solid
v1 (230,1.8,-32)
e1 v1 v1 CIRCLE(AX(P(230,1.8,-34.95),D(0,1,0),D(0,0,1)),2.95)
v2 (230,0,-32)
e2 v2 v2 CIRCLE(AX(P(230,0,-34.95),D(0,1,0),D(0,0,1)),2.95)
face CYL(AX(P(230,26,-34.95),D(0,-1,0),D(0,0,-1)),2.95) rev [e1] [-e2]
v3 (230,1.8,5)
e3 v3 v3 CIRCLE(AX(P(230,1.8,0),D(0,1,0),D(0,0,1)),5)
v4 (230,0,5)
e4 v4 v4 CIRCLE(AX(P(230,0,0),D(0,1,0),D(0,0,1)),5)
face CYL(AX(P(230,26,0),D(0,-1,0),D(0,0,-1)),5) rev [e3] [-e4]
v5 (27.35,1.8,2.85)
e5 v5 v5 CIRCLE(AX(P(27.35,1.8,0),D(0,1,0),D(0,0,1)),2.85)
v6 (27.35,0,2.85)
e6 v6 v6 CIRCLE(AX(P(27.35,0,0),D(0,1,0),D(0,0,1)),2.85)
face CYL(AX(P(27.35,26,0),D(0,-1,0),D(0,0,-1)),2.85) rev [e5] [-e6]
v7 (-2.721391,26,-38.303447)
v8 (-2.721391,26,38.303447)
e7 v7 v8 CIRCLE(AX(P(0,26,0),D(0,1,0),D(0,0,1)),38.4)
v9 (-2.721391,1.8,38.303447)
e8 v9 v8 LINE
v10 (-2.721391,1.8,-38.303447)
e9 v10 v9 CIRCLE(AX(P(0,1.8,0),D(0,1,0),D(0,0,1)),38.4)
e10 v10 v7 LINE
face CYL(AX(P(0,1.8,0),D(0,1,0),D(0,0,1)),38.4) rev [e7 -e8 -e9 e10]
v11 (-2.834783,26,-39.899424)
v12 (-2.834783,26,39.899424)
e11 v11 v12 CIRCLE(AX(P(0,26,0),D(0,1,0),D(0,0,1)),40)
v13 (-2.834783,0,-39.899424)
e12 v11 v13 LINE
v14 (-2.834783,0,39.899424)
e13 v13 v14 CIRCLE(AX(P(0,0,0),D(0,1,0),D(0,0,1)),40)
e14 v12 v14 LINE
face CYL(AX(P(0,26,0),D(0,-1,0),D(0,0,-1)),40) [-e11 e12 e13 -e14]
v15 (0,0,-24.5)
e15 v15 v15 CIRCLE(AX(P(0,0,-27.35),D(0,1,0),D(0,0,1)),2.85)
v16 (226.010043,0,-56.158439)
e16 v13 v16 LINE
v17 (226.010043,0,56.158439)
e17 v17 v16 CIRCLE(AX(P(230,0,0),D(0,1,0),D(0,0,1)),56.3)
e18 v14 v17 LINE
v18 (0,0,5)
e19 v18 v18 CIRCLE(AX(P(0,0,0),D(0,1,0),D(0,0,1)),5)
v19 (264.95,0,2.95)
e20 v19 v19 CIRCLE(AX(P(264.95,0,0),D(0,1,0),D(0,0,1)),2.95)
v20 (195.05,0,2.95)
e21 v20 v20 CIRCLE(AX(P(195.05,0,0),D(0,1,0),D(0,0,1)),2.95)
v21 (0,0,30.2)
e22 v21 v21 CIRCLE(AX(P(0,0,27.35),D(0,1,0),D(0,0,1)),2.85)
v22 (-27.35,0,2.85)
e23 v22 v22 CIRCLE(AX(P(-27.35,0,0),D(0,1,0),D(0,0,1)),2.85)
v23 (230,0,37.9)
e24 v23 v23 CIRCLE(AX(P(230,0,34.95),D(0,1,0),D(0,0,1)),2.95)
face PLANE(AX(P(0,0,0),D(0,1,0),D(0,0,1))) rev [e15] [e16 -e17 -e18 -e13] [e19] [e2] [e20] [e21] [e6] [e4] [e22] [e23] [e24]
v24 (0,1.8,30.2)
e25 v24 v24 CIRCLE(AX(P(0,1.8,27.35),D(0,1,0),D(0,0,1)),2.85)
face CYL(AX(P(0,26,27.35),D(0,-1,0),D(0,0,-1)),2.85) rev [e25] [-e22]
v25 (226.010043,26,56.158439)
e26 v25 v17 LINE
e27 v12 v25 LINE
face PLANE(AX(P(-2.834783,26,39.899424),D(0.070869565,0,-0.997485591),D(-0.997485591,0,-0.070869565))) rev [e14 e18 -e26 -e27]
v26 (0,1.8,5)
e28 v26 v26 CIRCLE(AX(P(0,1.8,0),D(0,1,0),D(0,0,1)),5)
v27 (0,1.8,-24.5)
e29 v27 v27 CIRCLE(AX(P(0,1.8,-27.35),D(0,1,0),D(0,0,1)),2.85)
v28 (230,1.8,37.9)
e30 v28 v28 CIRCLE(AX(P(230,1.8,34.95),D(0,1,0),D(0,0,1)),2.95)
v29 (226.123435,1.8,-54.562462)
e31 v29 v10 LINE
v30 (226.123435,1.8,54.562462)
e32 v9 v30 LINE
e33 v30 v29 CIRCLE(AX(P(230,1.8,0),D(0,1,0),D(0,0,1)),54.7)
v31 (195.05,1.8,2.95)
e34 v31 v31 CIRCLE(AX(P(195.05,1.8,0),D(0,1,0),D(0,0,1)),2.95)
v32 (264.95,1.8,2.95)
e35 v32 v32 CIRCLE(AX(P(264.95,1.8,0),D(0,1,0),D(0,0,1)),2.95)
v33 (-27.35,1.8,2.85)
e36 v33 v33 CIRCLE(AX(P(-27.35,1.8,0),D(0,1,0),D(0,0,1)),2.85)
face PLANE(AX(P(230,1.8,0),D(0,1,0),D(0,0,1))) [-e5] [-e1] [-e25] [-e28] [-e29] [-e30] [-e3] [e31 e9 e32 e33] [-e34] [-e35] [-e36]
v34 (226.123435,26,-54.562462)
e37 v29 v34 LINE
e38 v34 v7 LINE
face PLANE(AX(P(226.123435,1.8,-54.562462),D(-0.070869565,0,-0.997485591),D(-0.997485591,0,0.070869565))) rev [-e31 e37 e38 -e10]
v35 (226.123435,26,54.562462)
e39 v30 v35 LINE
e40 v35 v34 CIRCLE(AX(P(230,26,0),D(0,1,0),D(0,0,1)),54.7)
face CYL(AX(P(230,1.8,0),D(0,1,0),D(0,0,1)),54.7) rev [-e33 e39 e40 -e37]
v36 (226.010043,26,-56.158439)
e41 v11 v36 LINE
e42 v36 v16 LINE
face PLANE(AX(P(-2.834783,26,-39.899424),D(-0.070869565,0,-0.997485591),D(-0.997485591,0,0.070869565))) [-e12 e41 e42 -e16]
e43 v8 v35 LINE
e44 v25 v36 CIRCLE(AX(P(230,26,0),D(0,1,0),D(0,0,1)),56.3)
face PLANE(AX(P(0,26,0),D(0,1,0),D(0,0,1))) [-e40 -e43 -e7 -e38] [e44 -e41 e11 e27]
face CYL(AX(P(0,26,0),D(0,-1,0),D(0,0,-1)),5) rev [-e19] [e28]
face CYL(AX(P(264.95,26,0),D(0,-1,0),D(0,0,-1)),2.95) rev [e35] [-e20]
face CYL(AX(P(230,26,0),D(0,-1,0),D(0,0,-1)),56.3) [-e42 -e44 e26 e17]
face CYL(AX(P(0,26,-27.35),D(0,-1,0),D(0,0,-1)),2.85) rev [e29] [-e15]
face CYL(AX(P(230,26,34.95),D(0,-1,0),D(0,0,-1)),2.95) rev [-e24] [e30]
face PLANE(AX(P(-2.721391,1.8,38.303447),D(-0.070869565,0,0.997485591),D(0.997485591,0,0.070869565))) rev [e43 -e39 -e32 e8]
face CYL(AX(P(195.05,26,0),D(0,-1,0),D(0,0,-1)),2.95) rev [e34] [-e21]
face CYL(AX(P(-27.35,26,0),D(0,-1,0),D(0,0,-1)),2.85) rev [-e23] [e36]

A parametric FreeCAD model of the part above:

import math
import FreeCAD as App
import Part
import Sketcher
Q = App.Units.Quantity

doc = App.newDocument("Part")
params = doc.addObject("Spreadsheet::Sheet", "Params")
for row, (alias, value) in enumerate([
    ("sketch1_diameter", "10 mm"),
    ("sketch1_radius", "40 mm"),
    ("sketch1_diameter2", "5.7 mm"),
    ("sketch1_diameter3", "5.9 mm"),
    ("sketch1_radius2", "56.3 mm"),
    ("pad1_length", "26 mm"),
    ("sketch2_radius", "54.7 mm"),
    ("sketch2_radius2", "38.4 mm"),
    ("pocket1_length", "24.2 mm"),
], start=1):
    params.set(f"A{row}", alias)
    params.set(f"B{row}", "=" + value)
    params.setAlias(f"B{row}", alias)

body = doc.addObject("PartDesign::Body", "Body")

sketch1 = doc.addObject("Sketcher::SketchObject", "Sketch")
body.addObject(sketch1)
sketch1.AttachmentSupport = (doc.XZ_Plane, [""])
sketch1.MapMode = "FlatFace"
sketch1.addGeometry(Part.LineSegment(App.Vector(226, -56.2, 0), App.Vector(-2.8, -39.9, 0)), False)
sketch1.addGeometry(Part.ArcOfCircle(Part.Circle(App.Vector(0, 0, 0), App.Vector(0, 0, 1), 40), math.radians(94), math.radians(266)), False)
sketch1.addGeometry(Part.LineSegment(App.Vector(-2.8, 39.9, 0), App.Vector(226, 56.2, 0)), False)
sketch1.addGeometry(Part.ArcOfCircle(Part.Circle(App.Vector(230, 0, 0), App.Vector(0, 0, 1), 56.3), math.radians(-94), math.radians(94)), False)
sketch1.addGeometry(Part.Circle(App.Vector(0, 27.4, 0), App.Vector(0, 0, 1), 2.9), False)
sketch1.addGeometry(Part.Circle(App.Vector(-27.4, 0, 0), App.Vector(0, 0, 1), 2.9), False)
sketch1.addGeometry(Part.Circle(App.Vector(0, 0, 0), App.Vector(0, 0, 1), 5), False)
sketch1.addGeometry(Part.Circle(App.Vector(27.4, 0, 0), App.Vector(0, 0, 1), 2.9), False)
sketch1.addGeometry(Part.Circle(App.Vector(230, 35, 0), App.Vector(0, 0, 1), 3), False)
sketch1.addGeometry(Part.Circle(App.Vector(195.1, 0, 0), App.Vector(0, 0, 1), 3), False)
sketch1.addGeometry(Part.Circle(App.Vector(230, 0, 0), App.Vector(0, 0, 1), 5), False)
sketch1.addGeometry(Part.Circle(App.Vector(264.9, 0, 0), App.Vector(0, 0, 1), 3), False)
sketch1.addGeometry(Part.Circle(App.Vector(0, -27.4, 0), App.Vector(0, 0, 1), 2.9), False)
sketch1.addGeometry(Part.Circle(App.Vector(230, -35, 0), App.Vector(0, 0, 1), 3), False)
sketch1.addConstraint(Sketcher.Constraint("Tangent", 0, 2, 1, 2))
sketch1.addConstraint(Sketcher.Constraint("Tangent", 1, 1, 2, 1))
sketch1.addConstraint(Sketcher.Constraint("Tangent", 2, 2, 3, 2))
sketch1.addConstraint(Sketcher.Constraint("Tangent", 3, 1, 0, 1))
sketch1.addConstraint(Sketcher.Constraint("Coincident", 1, 3, -1, 1))
sketch1.addConstraint(Sketcher.Constraint("Coincident", 6, 3, -1, 1))
sketch1.addConstraint(Sketcher.Constraint("Coincident", 10, 3, 3, 3))
sketch1.addConstraint(Sketcher.Constraint("Equal", 4, 5))
sketch1.addConstraint(Sketcher.Constraint("Equal", 5, 7))
sketch1.addConstraint(Sketcher.Constraint("Equal", 8, 9))
sketch1.addConstraint(Sketcher.Constraint("Equal", 6, 10))
sketch1.addConstraint(Sketcher.Constraint("Equal", 9, 11))
sketch1.addConstraint(Sketcher.Constraint("Equal", 7, 12))
sketch1.addConstraint(Sketcher.Constraint("Equal", 11, 13))
sketch1.addConstraint(Sketcher.Constraint("Symmetric", 5, 3, 7, 3, -1, 1))
sketch1.addConstraint(Sketcher.Constraint("Symmetric", 4, 3, 12, 3, -1, 1))
sketch1.addConstraint(Sketcher.Constraint("Symmetric", 8, 3, 13, 3, -1))
sketch1.addConstraint(Sketcher.Constraint("PointOnObject", 3, 3, -1))
sketch1.addConstraint(Sketcher.Constraint("PointOnObject", 4, 3, -2))
sketch1.addConstraint(Sketcher.Constraint("PointOnObject", 5, 3, -1))
sketch1.addConstraint(Sketcher.Constraint("PointOnObject", 9, 3, -1))
sketch1.addConstraint(Sketcher.Constraint("PointOnObject", 11, 3, -1))
sketch1.addConstraint(Sketcher.Constraint("Vertical", 3, 3, 8, 3))
sketch1.addConstraint(Sketcher.Constraint("Diameter", 6, Q("10 mm")))
sketch1.addConstraint(Sketcher.Constraint("Radius", 1, Q("40 mm")))
sketch1.addConstraint(Sketcher.Constraint("Diameter", 4, Q("5.7 mm")))
sketch1.addConstraint(Sketcher.Constraint("Diameter", 8, Q("5.9 mm")))
sketch1.addConstraint(Sketcher.Constraint("Radius", 3, Q("56.3 mm")))
sketch1.addConstraint(Sketcher.Constraint("DistanceX", -1, 1, 3, 3, Q("230 mm")))
sketch1.addConstraint(Sketcher.Constraint("DistanceX", 5, 3, 7, 3, Q("54.7 mm")))
sketch1.addConstraint(Sketcher.Constraint("DistanceY", 4, 3, 8, 3, Q("7.6 mm")))
sketch1.addConstraint(Sketcher.Constraint("DistanceX", 7, 3, 9, 3, Q("167.7 mm")))
sketch1.addConstraint(Sketcher.Constraint("DistanceX", 9, 3, 11, 3, Q("69.9 mm")))
sketch1.addConstraint(Sketcher.Constraint("DistanceY", 12, 3, 4, 3, Q("54.7 mm")))
sketch1.setExpression("Constraints[23]", "Params.sketch1_diameter")
sketch1.setExpression("Constraints[24]", "Params.sketch1_radius")
sketch1.setExpression("Constraints[25]", "Params.sketch1_diameter2")
sketch1.setExpression("Constraints[26]", "Params.sketch1_diameter3")
sketch1.setExpression("Constraints[27]", "Params.sketch1_radius2")
pad1 = doc.addObject("PartDesign::Pad", "Pad")
body.addObject(pad1)
pad1.Profile = sketch1
pad1.setExpression("Length", "Params.pad1_length")
pad1.Reversed = True

sketch2 = doc.addObject("Sketcher::SketchObject", "Sketch001")
body.addObject(sketch2)
sketch2.AttachmentSupport = (doc.XZ_Plane, [""])
sketch2.MapMode = "FlatFace"
sketch2.AttachmentOffset = App.Placement(App.Vector(0, 0, -26), App.Rotation())
sketch2.addGeometry(Part.LineSegment(App.Vector(-3, 38, 0), App.Vector(226, 55, 0)), False)
sketch2.addGeometry(Part.ArcOfCircle(Part.Circle(App.Vector(230, 0, 0), App.Vector(0, 0, 1), 55), math.radians(-94), math.radians(94)), False)
sketch2.addGeometry(Part.LineSegment(App.Vector(226, -55, 0), App.Vector(-3, -38, 0)), False)
sketch2.addGeometry(Part.ArcOfCircle(Part.Circle(App.Vector(0, 0, 0), App.Vector(0, 0, 1), 38), math.radians(94), math.radians(266)), False)
sketch2.addConstraint(Sketcher.Constraint("Tangent", 0, 2, 1, 2))
sketch2.addConstraint(Sketcher.Constraint("Tangent", 1, 1, 2, 1))
sketch2.addConstraint(Sketcher.Constraint("Tangent", 2, 2, 3, 2))
sketch2.addConstraint(Sketcher.Constraint("Tangent", 3, 1, 0, 1))
sketch2.addConstraint(Sketcher.Constraint("Coincident", 3, 3, -1, 1))
sketch2.addConstraint(Sketcher.Constraint("PointOnObject", 1, 3, -1))
sketch2.addConstraint(Sketcher.Constraint("Radius", 1, Q("54.7 mm")))
sketch2.addConstraint(Sketcher.Constraint("Radius", 3, Q("38.4 mm")))
sketch2.addConstraint(Sketcher.Constraint("DistanceX", -1, 1, 1, 3, Q("230 mm")))
sketch2.setExpression("Constraints[6]", "Params.sketch2_radius")
sketch2.setExpression("Constraints[7]", "Params.sketch2_radius2")
pocket1 = doc.addObject("PartDesign::Pocket", "Pocket")
body.addObject(pocket1)
pocket1.Profile = sketch2
pocket1.setExpression("Length", "Params.pocket1_length")
pocket1.Reversed = True

doc.recompute()
